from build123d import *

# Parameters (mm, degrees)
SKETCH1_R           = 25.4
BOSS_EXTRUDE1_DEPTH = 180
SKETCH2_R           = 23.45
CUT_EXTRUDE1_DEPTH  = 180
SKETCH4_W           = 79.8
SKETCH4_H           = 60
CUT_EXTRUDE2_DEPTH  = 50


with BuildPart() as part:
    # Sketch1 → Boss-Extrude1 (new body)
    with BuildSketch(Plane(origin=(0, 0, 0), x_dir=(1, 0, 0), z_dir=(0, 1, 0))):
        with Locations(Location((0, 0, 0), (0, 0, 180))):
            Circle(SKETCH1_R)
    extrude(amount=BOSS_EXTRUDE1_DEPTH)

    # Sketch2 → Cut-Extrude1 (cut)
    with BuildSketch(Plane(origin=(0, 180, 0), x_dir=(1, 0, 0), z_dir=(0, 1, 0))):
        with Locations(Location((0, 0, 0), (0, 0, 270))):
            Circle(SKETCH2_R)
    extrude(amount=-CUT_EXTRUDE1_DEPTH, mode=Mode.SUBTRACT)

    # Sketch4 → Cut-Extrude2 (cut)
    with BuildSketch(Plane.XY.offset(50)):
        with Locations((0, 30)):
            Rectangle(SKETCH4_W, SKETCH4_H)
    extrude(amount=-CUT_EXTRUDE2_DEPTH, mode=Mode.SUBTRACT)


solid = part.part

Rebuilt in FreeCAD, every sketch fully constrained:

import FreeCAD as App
import Part
import Sketcher

V = App.Vector
Q = App.Units.Quantity


def add_polygon(sketch, points):
    """Adds a closed chain of lines whose ends are joined by coincident constraints."""
    first, n = sketch.GeometryCount, len(points)
    for a, b in zip(points, points[1:] + points[:1]):
        sketch.addGeometry(Part.LineSegment(App.Vector(*a, 0), App.Vector(*b, 0)), False)
    for i in range(n):
        sketch.addConstraint(Sketcher.Constraint("Coincident", first + i, 2, first + (i + 1) % n, 1))

doc = App.newDocument("Part")
body = doc.addObject("PartDesign::Body", "Body")

sketch1 = doc.addObject("Sketcher::SketchObject", "Sketch")
body.addObject(sketch1)
sketch1.AttachmentSupport = (doc.XZ_Plane, [""])
sketch1.MapMode = "FlatFace"
sketch1.addGeometry(Part.Circle(V(0, 0, 0), V(0, 0, 1), 25), False)
sketch1.addConstraint([
    Sketcher.Constraint("Coincident", 0, 3, -1, 1),
    Sketcher.Constraint("Diameter", 0, Q("50.8 mm")),
])
pad1 = doc.addObject("PartDesign::Pad", "Pad")
body.addObject(pad1)
pad1.Profile = sketch1
pad1.Length = 180
pad1.Reversed = True

sketch2 = doc.addObject("Sketcher::SketchObject", "Sketch001")
body.addObject(sketch2)
sketch2.AttachmentSupport = (doc.XZ_Plane, [""])
sketch2.MapMode = "FlatFace"
sketch2.AttachmentOffset = App.Placement(V(0, 0, -180), App.Rotation())
sketch2.addGeometry(Part.Circle(V(0, 0, 0), V(0, 0, 1), 23), False)
sketch2.addConstraint([
    Sketcher.Constraint("Coincident", 0, 3, -1, 1),
    Sketcher.Constraint("Diameter", 0, Q("46.9 mm")),
])
pocket1 = doc.addObject("PartDesign::Pocket", "Pocket")
body.addObject(pocket1)
pocket1.Profile = sketch2
pocket1.Length = 180
pocket1.Reversed = True

sketch3 = doc.addObject("Sketcher::SketchObject", "Sketch002")
body.addObject(sketch3)
sketch3.AttachmentSupport = (doc.XY_Plane, [""])
sketch3.MapMode = "FlatFace"
sketch3.AttachmentOffset = App.Placement(V(0, 0, 50), App.Rotation())
add_polygon(sketch3, [(-40, 60), (-40, 0), (40, 0), (40, 60)])
sketch3.addConstraint([
    Sketcher.Constraint("Vertical", 0),
    Sketcher.Constraint("Horizontal", 1),
    Sketcher.Constraint("Vertical", 2),
    Sketcher.Constraint("Horizontal", 3),
    Sketcher.Constraint("Symmetric", 0, 2, 1, 2, -1, 1),
    Sketcher.Constraint("DistanceY", 0, 2, 0, 1, Q("60 mm")),
    Sketcher.Constraint("DistanceX", 1, 1, 1, 2, Q("79.8 mm")),
])
pocket2 = doc.addObject("PartDesign::Pocket", "Pocket001")
body.addObject(pocket2)
pocket2.Profile = sketch3
pocket2.Length = 50

doc.recompute()
